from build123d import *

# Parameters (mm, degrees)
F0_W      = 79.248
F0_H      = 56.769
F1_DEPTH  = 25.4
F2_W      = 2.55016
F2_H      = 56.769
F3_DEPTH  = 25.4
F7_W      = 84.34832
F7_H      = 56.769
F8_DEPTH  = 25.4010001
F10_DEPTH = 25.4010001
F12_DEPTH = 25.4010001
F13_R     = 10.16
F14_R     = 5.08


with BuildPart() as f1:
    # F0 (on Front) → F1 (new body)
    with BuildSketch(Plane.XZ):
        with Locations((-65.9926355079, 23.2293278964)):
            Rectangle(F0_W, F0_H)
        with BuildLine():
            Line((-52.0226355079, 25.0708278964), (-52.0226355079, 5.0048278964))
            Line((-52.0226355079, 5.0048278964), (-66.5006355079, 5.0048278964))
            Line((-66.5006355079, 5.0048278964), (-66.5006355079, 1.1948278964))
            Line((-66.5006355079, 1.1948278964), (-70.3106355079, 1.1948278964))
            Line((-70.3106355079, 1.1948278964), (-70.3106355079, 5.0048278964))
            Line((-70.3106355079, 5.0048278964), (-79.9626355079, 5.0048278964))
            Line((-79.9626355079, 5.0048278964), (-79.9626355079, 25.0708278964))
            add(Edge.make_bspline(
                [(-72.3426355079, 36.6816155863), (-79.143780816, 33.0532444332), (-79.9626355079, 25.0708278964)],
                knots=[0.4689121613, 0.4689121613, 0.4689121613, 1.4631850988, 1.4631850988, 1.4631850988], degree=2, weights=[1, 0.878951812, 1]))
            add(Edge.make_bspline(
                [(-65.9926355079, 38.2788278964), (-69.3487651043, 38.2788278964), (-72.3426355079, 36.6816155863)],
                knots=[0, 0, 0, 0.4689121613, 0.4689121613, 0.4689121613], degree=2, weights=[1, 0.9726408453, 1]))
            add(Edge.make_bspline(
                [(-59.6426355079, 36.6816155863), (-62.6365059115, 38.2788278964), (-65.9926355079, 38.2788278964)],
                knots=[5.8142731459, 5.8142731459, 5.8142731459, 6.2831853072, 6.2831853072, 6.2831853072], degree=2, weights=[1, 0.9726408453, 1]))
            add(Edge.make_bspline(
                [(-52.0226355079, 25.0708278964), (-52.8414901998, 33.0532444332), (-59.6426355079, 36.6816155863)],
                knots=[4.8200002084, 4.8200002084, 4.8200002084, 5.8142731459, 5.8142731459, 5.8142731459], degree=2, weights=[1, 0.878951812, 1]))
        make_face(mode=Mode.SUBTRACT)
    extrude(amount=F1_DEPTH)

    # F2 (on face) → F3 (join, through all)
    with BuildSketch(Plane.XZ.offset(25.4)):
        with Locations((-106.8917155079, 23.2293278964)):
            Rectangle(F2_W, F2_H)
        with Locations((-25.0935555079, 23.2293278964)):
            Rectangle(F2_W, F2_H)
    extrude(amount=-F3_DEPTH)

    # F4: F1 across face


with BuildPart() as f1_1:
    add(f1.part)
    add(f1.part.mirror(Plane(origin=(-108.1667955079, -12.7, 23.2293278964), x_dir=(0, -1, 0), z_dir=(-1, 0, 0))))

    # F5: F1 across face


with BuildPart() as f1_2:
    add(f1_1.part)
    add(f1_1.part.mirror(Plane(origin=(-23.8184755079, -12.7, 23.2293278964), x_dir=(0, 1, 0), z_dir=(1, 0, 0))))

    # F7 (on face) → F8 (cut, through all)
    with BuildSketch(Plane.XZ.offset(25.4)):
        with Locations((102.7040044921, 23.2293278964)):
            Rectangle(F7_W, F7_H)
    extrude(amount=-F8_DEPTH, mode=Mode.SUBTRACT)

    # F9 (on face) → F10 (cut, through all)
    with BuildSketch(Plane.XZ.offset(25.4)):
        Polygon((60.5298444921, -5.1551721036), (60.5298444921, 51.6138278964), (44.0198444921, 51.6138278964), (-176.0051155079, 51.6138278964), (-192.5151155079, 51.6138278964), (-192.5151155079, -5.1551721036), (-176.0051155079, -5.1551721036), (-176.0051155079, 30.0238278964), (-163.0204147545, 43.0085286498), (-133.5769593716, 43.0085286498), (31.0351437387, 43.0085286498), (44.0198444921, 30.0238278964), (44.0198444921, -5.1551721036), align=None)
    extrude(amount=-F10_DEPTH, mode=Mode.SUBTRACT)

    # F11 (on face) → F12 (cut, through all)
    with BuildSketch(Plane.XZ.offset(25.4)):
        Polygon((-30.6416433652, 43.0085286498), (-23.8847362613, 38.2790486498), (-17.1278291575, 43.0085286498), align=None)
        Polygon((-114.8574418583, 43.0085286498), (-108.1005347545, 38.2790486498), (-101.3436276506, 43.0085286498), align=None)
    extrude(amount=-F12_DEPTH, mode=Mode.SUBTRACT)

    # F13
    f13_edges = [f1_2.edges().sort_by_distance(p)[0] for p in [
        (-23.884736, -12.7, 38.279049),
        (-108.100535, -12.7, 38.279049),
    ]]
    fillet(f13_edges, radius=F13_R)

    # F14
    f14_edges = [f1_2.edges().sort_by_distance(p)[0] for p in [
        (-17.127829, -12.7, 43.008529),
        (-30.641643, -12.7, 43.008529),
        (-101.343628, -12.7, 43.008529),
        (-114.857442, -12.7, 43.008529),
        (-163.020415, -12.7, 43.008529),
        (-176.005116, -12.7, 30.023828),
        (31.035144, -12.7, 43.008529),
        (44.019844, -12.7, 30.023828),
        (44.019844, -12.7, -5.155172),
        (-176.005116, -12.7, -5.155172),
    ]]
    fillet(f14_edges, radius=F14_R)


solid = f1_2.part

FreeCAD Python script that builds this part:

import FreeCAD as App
import Part
import Sketcher

V = App.Vector
Q = App.Units.Quantity


def edges_at(feature, points):
    """Names of the edges that pass closest to the given points."""
    edges = feature.Shape.Edges
    near = lambda p: min(range(len(edges)), key=lambda i: edges[i].distToShape(Part.Vertex(*p))[0])
    return sorted({f"Edge{near(p) + 1}" for p in points})


def add_polygon(sketch, points):
    """Adds a closed chain of lines whose ends are joined by coincident constraints."""
    first, n = sketch.GeometryCount, len(points)
    for a, b in zip(points, points[1:] + points[:1]):
        sketch.addGeometry(Part.LineSegment(App.Vector(*a, 0), App.Vector(*b, 0)), False)
    for i in range(n):
        sketch.addConstraint(Sketcher.Constraint("Coincident", first + i, 2, first + (i + 1) % n, 1))

doc = App.newDocument("Part")
params = doc.addObject("Spreadsheet::Sheet", "Params")
for row, (alias, value) in enumerate([
    ("sketch1_width", "3.12 in"),
    ("sketch1_width2", "0.57 in"),
    ("sketch1_width3", "0.15 in"),
    ("sketch1_height", "0.79 in"),
    ("sketch1_height2", "2.235 in"),
    ("pad1_length", "1 in"),
    ("sketch2_height", "2.235 in"),
    ("pad2_length", "1 in"),
    ("sketch3_height", "2.235 in"),
    ("sketch4_width", "0.65 in"),
    ("sketch4_height", "2.235 in"),
    ("sketch4_height2", "1.385 in"),
    ("fillet_radius", "0.4 in"),
    ("fillet2_radius", "0.2 in"),
], start=1):
    params.set(f"A{row}", alias)
    params.set(f"B{row}", "=" + value)
    params.setAlias(f"B{row}", alias)

body = doc.addObject("PartDesign::Body", "Body")

sketch1 = body.newObject("Sketcher::SketchObject", "Sketch")
sketch1.AttachmentSupport = (doc.getObject("XZ_Plane"), [""])
sketch1.MapMode = "FlatFace"
add_polygon(sketch1, [(-105.616636, 51.613828), (-105.616636, -5.155172), (-26.368636, -5.155172), (-26.368636, 51.613828)])
sketch1.addGeometry(Part.BSplineCurve([V(-52.022636, 25.070828, 0), V(-52.84149, 33.053244, 0), V(-59.642636, 36.681616, 0)], [3, 3], [4.820000208, 5.814273146], False, 2, [1, 0.878951812, 1], False), False)
sketch1.addGeometry(Part.LineSegment(V(-52.022636, 25.070828, 0), V(-52.022636, 5.004828, 0)), False)
sketch1.addGeometry(Part.LineSegment(V(-52.022636, 5.004828, 0), V(-66.500636, 5.004828, 0)), False)
sketch1.addGeometry(Part.LineSegment(V(-66.500636, 5.004828, 0), V(-66.500636, 1.194828, 0)), False)
sketch1.addGeometry(Part.LineSegment(V(-66.500636, 1.194828, 0), V(-70.310636, 1.194828, 0)), False)
sketch1.addGeometry(Part.LineSegment(V(-70.310636, 1.194828, 0), V(-70.310636, 5.004828, 0)), False)
sketch1.addGeometry(Part.LineSegment(V(-70.310636, 5.004828, 0), V(-79.962636, 5.004828, 0)), False)
sketch1.addGeometry(Part.LineSegment(V(-79.962636, 5.004828, 0), V(-79.962636, 25.070828, 0)), False)
sketch1.addGeometry(Part.BSplineCurve([V(-72.342636, 36.681616, 0), V(-79.143781, 33.053244, 0), V(-79.962636, 25.070828, 0)], [3, 3], [0.468912161, 1.463185099], False, 2, [1, 0.878951812, 1], False), False)
sketch1.addGeometry(Part.BSplineCurve([V(-59.642636, 36.681616, 0), V(-60.80742, 37.303021, 0), V(-62.057402, 37.790778, 0), V(-63.362539, 38.119059, 0), V(-64.686912, 38.278828, 0), V(-67.298359, 38.278828, 0), V(-68.622732, 38.119059, 0), V(-69.927869, 37.790778, 0), V(-71.177851, 37.303021, 0), V(-72.342636, 36.681616, 0)], [6, 4, 6], [5.814273146, 6.283185307, 6.752097468], False, 5, [1, 1, 0.999700591, 0.999700591, 1, 1, 0.999700591, 0.999700591, 1, 1], False), False)
sketch1.addConstraint([
    Sketcher.Constraint("Block", 4),
    Sketcher.Constraint("Block", 12),
    Sketcher.Constraint("Block", 13),
    Sketcher.Constraint("Coincident", 4, 1, 5, 1),
    Sketcher.Constraint("Coincident", 5, 2, 6, 1),
    Sketcher.Constraint("Coincident", 6, 2, 7, 1),
    Sketcher.Constraint("Coincident", 7, 2, 8, 1),
    Sketcher.Constraint("Coincident", 8, 2, 9, 1),
    Sketcher.Constraint("Coincident", 9, 2, 10, 1),
    Sketcher.Constraint("Coincident", 10, 2, 11, 1),
    Sketcher.Constraint("Coincident", 11, 2, 12, 2),
    Sketcher.Constraint("Vertical", 0),
    Sketcher.Constraint("Horizontal", 1),
    Sketcher.Constraint("Vertical", 2),
    Sketcher.Constraint("Horizontal", 3),
    Sketcher.Constraint("Vertical", 5),
    Sketcher.Constraint("Horizontal", 6),
    Sketcher.Constraint("Vertical", 7),
    Sketcher.Constraint("Horizontal", 8),
    Sketcher.Constraint("Vertical", 9),
    Sketcher.Constraint("Horizontal", 10),
    Sketcher.Constraint("Vertical", 11),
    Sketcher.Constraint("Horizontal", 6, 2, 9, 2),
    Sketcher.Constraint("Equal", 8, 7),
    Sketcher.Constraint("DistanceX", 1, 1, 1, 2, Q("3.12 in")),
    Sketcher.Constraint("DistanceX", 6, 2, 6, 1, Q("0.57 in")),
    Sketcher.Constraint("DistanceX", 8, 2, 8, 1, Q("0.15 in")),
    Sketcher.Constraint("DistanceY", 5, 2, 5, 1, Q("0.79 in")),
    Sketcher.Constraint("DistanceY", 1, 2, 5, 2, Q("0.4 in")),
    Sketcher.Constraint("DistanceY", 0, 2, 0, 1, Q("2.235 in")),
    Sketcher.Constraint("DistanceX", 5, 2, 1, 2, Q("1.01 in")),
])
sketch1.setExpression("Constraints[28]", "Params.sketch1_width")
sketch1.setExpression("Constraints[29]", "Params.sketch1_width2")
sketch1.setExpression("Constraints[30]", "Params.sketch1_width3")
sketch1.setExpression("Constraints[31]", "Params.sketch1_height")
sketch1.setExpression("Constraints[33]", "Params.sketch1_height2")
pad1 = body.newObject("PartDesign::Pad", "Pad")
pad1.Profile = sketch1
pad1.setExpression("Length", "Params.pad1_length")

sketch2 = body.newObject("Sketcher::SketchObject", "Sketch001")
sketch2.AttachmentSupport = (doc.getObject("XZ_Plane"), [""])
sketch2.MapMode = "FlatFace"
sketch2.AttachmentOffset = App.Placement(V(0, 0, 1 * 25.4), App.Rotation())
add_polygon(sketch2, [(-108.2, 51.6), (-108.2, -5.2), (-105.6, -5.2), (-105.6, 51.6)])
add_polygon(sketch2, [(-26.4, 51.6), (-26.4, -5.2), (-23.8, -5.2), (-23.8, 51.6)])
sketch2.addConstraint([
    Sketcher.Constraint("Vertical", 0),
    Sketcher.Constraint("Horizontal", 1),
    Sketcher.Constraint("Vertical", 2),
    Sketcher.Constraint("Horizontal", 3),
    Sketcher.Constraint("Vertical", 4),
    Sketcher.Constraint("Horizontal", 5),
    Sketcher.Constraint("Vertical", 6),
    Sketcher.Constraint("Horizontal", 7),
    Sketcher.Constraint("Horizontal", 1, 2, 4, 2),
    Sketcher.Constraint("Horizontal", 3, 2, 6, 2),
    Sketcher.Constraint("Equal", 3, 5),
    Sketcher.Constraint("DistanceY", 0, 2, 0, 1, Q("2.235 in")),
    Sketcher.Constraint("DistanceX", 1, 2, 4, 2, Q("3.12 in")),
    Sketcher.Constraint("DistanceX", 1, 1, 1, 2, Q("0.1004 in")),
    Sketcher.Constraint("DistanceX", 0, 2, -1, 1, Q("108.166796 mm")),
    Sketcher.Constraint("DistanceY", 0, 2, -1, 1, Q("5.155172 mm")),
])
sketch2.setExpression("Constraints[19]", "Params.sketch2_height")
pad2 = body.newObject("PartDesign::Pad", "Pad001")
pad2.Profile = sketch2
pad2.setExpression("Length", "Params.pad2_length")
pad2.Reversed = True
body2 = doc.addObject("PartDesign::Body", "Body001")
doc.recompute()

body2.BaseFeature = body
doc.recompute()

mirroring = doc.addObject("Part::Mirroring", "Mirroring")
mirroring.Source = body
mirroring.Base = V(-108.166796, -12.7, 23.229328)
mirroring.Normal = V(-1, 0, 0)
body3 = doc.addObject("PartDesign::Body", "Body002")
body3.BaseFeature = mirroring
boolean = body2.newObject("PartDesign::Boolean", "Boolean")
boolean.Type = "Fuse"
boolean.addObjects([body3])
doc.recompute()
body4 = doc.addObject("PartDesign::Body", "Body003")
doc.recompute()

body4.BaseFeature = body2
doc.recompute()

mirroring2 = doc.addObject("Part::Mirroring", "Mirroring001")
mirroring2.Source = body2
mirroring2.Base = V(-23.818476, -12.7, 23.229328)
mirroring2.Normal = V(1, 0, 0)
body5 = doc.addObject("PartDesign::Body", "Body004")
body5.BaseFeature = mirroring2
boolean2 = body4.newObject("PartDesign::Boolean", "Boolean001")
boolean2.Type = "Fuse"
boolean2.addObjects([body5])
doc.recompute()

sketch3 = body4.newObject("Sketcher::SketchObject", "Sketch002")
sketch3.AttachmentSupport = (doc.getObject("XZ_Plane003"), [""])
sketch3.MapMode = "FlatFace"
sketch3.AttachmentOffset = App.Placement(V(0, 0, 1 * 25.4), App.Rotation())
add_polygon(sketch3, [(61, 52), (61, -5), (145, -5), (145, 52)])
sketch3.addConstraint([
    Sketcher.Constraint("Vertical", 0),
    Sketcher.Constraint("Horizontal", 1),
    Sketcher.Constraint("Vertical", 2),
    Sketcher.Constraint("Horizontal", 3),
    Sketcher.Constraint("DistanceY", 0, 2, 0, 1, Q("2.235 in")),
    Sketcher.Constraint("DistanceX", 1, 1, 1, 2, Q("3.3208 in")),
    Sketcher.Constraint("DistanceX", -1, 1, 0, 2, Q("60.529844 mm")),
    Sketcher.Constraint("DistanceY", 0, 2, -1, 1, Q("5.155172 mm")),
])
sketch3.setExpression("Constraints[8]", "Params.sketch3_height")
pocket1 = body4.newObject("PartDesign::Pocket", "Pocket")
pocket1.Profile = sketch3
pocket1.Type = "ThroughAll"

sketch4 = body4.newObject("Sketcher::SketchObject", "Sketch003")
sketch4.AttachmentSupport = (doc.getObject("XZ_Plane003"), [""])
sketch4.MapMode = "FlatFace"
sketch4.AttachmentOffset = App.Placement(V(0, 0, 1 * 25.4), App.Rotation())
add_polygon(sketch4, [(61, -5), (61, 52), (-193, 52), (-193, -5), (-176, -5), (-176, 30), (-163, 43), (31, 43), (44, 30), (44, -5)])
sketch4.addConstraint([
    Sketcher.Constraint("Vertical", 0),
    Sketcher.Constraint("Horizontal", 1),
    Sketcher.Constraint("Vertical", 2),
    Sketcher.Constraint("Horizontal", 3),
    Sketcher.Constraint("Vertical", 4),
    Sketcher.Constraint("Horizontal", 6),
    Sketcher.Constraint("Vertical", 8),
    Sketcher.Constraint("Horizontal", 9),
    Sketcher.Constraint("Perpendicular", 5, 7),
    Sketcher.Constraint("Horizontal", 4, 2, 7, 2),
    Sketcher.Constraint("Horizontal", 3, 2, 8, 2),
    Sketcher.Constraint("Equal", 3, 9),
    Sketcher.Constraint("Equal", 5, 7),
    Sketcher.Constraint("DistanceX", 3, 1, 3, 2, Q("0.65 in")),
    Sketcher.Constraint("DistanceY", 0, 1, 0, 2, Q("2.235 in")),
    Sketcher.Constraint("DistanceY", 4, 1, 4, 2, Q("1.385 in")),
    Sketcher.Constraint("DistanceX", 1, 2, 1, 1, Q("9.9624 in")),
    Sketcher.Constraint("DistanceX", 6, 1, 6, 2, Q("194.055558 mm")),
    Sketcher.Constraint("DistanceY", -1, 1, 5, 2, Q("43.008529 mm")),
    Sketcher.Constraint("DistanceX", -1, 1, 0, 2, Q("60.529844 mm")),
])
sketch4.setExpression("Constraints[23]", "Params.sketch4_width")
sketch4.setExpression("Constraints[24]", "Params.sketch4_height")
sketch4.setExpression("Constraints[25]", "Params.sketch4_height2")
pocket2 = body4.newObject("PartDesign::Pocket", "Pocket001")
pocket2.Profile = sketch4
pocket2.Type = "ThroughAll"

sketch5 = body4.newObject("Sketcher::SketchObject", "Sketch004")
sketch5.AttachmentSupport = (doc.getObject("XZ_Plane003"), [""])
sketch5.MapMode = "FlatFace"
sketch5.AttachmentOffset = App.Placement(V(0, 0, 1 * 25.4), App.Rotation())
add_polygon(sketch5, [(-31, 43), (-24, 38), (-17, 43)])
add_polygon(sketch5, [(-115, 43), (-108, 38), (-101, 43)])
sketch5.addConstraint([
    Sketcher.Constraint("Horizontal", 2),
    Sketcher.Constraint("Horizontal", 5),
    Sketcher.Constraint("Parallel", 0, 3),
    Sketcher.Constraint("Parallel", 1, 4),
    Sketcher.Constraint("Horizontal", 0, 2, 3, 2),
    Sketcher.Constraint("Horizontal", 2, 2, 4, 2),
    Sketcher.Constraint("Equal", 0, 1),
    Sketcher.Constraint("Angle", 0, Q("-34.99 deg")),
    Sketcher.Constraint("DistanceY", 0, 2, 1, 2, Q("0.1862 in")),
    Sketcher.Constraint("DistanceX", 3, 2, 0, 2, Q("84.215798 mm")),
    Sketcher.Constraint("DistanceY", -1, 1, 0, 2, Q("38.279049 mm")),
    Sketcher.Constraint("DistanceX", 1, 2, -1, 1, Q("17.127829 mm")),
])
pocket3 = body4.newObject("PartDesign::Pocket", "Pocket002")
pocket3.Profile = sketch5
pocket3.Type = "ThroughAll"
doc.recompute()

fillet = body4.newObject("PartDesign::Fillet", "Fillet")
fillet.Base = (pocket3, edges_at(pocket3, [(-23.885, -12.7, 38.279), (-108.101, -12.7, 38.279)]))
fillet.setExpression("Radius", "Params.fillet_radius")
doc.recompute()

fillet2 = body4.newObject("PartDesign::Fillet", "Fillet001")
fillet2.Base = (fillet, edges_at(fillet, [
    (-17.128, -12.7, 43.009),
    (-30.642, -12.7, 43.009),
    (-101.344, -12.7, 43.009),
    (-114.857, -12.7, 43.009),
    (-163.02, -12.7, 43.009),
    (-176.005, -12.7, 30.024),
    (31.035, -12.7, 43.009),
    (44.02, -12.7, 30.024),
    (44.02, -12.7, -5.155),
    (-176.005, -12.7, -5.155),
]))
fillet2.setExpression("Radius", "Params.fillet2_radius")
mirroring.Visibility = False
mirroring2.Visibility = False

doc.recompute()
